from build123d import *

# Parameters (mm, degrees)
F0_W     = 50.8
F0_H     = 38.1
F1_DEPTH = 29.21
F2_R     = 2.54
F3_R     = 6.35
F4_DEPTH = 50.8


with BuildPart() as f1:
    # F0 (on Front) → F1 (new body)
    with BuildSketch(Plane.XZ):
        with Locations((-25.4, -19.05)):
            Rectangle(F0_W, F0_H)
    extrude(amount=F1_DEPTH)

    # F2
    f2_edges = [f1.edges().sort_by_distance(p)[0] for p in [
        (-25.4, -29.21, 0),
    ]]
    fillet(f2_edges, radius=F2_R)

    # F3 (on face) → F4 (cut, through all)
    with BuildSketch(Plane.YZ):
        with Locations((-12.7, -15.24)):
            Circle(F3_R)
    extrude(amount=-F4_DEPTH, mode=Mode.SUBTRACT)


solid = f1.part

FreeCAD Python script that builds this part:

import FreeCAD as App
import Part
import Sketcher

V = App.Vector
Q = App.Units.Quantity


def edges_at(feature, points):
    """Names of the edges that pass closest to the given points."""
    edges = feature.Shape.Edges
    near = lambda p: min(range(len(edges)), key=lambda i: edges[i].distToShape(Part.Vertex(*p))[0])
    return sorted({f"Edge{near(p) + 1}" for p in points})


def add_polygon(sketch, points):
    """Adds a closed chain of lines whose ends are joined by coincident constraints."""
    first, n = sketch.GeometryCount, len(points)
    for a, b in zip(points, points[1:] + points[:1]):
        sketch.addGeometry(Part.LineSegment(App.Vector(*a, 0), App.Vector(*b, 0)), False)
    for i in range(n):
        sketch.addConstraint(Sketcher.Constraint("Coincident", first + i, 2, first + (i + 1) % n, 1))

doc = App.newDocument("Part")
body = doc.addObject("PartDesign::Body", "Body")

sketch1 = body.newObject("Sketcher::SketchObject", "Sketch")
sketch1.AttachmentSupport = (doc.getObject("XZ_Plane"), [""])
sketch1.MapMode = "FlatFace"
add_polygon(sketch1, [(-51, 0), (-51, -38), (0, -38), (0, 0)])
sketch1.addConstraint([
    Sketcher.Constraint("Vertical", 0),
    Sketcher.Constraint("Horizontal", 1),
    Sketcher.Constraint("Vertical", 2),
    Sketcher.Constraint("Horizontal", 3),
    Sketcher.Constraint("Coincident", 2, 2, -1, 1),
    Sketcher.Constraint("DistanceX", 1, 1, 1, 2, Q("2 in")),
    Sketcher.Constraint("DistanceY", 0, 2, 0, 1, Q("1.5 in")),
])
pad1 = body.newObject("PartDesign::Pad", "Pad")
pad1.Profile = sketch1
pad1.Length = Q("1.15 in")
doc.recompute()

fillet = body.newObject("PartDesign::Fillet", "Fillet")
fillet.Base = (pad1, edges_at(pad1, [(-25.4, -29.21, 0)]))
fillet.Radius = Q("0.1 in")

sketch2 = body.newObject("Sketcher::SketchObject", "Sketch001")
sketch2.AttachmentSupport = (doc.getObject("YZ_Plane"), [""])
sketch2.MapMode = "FlatFace"
sketch2.addGeometry(Part.Circle(V(-13, -15, 0), V(0, 0, 1), 6), False)
sketch2.addConstraint([
    Sketcher.Constraint("Diameter", 0, Q("0.5 in")),
    Sketcher.Constraint("DistanceX", 0, 3, -1, 1, Q("0.5 in")),
    Sketcher.Constraint("DistanceY", 0, 3, -1, 1, Q("0.6 in")),
])
pocket1 = body.newObject("PartDesign::Pocket", "Pocket")
pocket1.Profile = sketch2
pocket1.Type = "ThroughAll"

doc.recompute()
